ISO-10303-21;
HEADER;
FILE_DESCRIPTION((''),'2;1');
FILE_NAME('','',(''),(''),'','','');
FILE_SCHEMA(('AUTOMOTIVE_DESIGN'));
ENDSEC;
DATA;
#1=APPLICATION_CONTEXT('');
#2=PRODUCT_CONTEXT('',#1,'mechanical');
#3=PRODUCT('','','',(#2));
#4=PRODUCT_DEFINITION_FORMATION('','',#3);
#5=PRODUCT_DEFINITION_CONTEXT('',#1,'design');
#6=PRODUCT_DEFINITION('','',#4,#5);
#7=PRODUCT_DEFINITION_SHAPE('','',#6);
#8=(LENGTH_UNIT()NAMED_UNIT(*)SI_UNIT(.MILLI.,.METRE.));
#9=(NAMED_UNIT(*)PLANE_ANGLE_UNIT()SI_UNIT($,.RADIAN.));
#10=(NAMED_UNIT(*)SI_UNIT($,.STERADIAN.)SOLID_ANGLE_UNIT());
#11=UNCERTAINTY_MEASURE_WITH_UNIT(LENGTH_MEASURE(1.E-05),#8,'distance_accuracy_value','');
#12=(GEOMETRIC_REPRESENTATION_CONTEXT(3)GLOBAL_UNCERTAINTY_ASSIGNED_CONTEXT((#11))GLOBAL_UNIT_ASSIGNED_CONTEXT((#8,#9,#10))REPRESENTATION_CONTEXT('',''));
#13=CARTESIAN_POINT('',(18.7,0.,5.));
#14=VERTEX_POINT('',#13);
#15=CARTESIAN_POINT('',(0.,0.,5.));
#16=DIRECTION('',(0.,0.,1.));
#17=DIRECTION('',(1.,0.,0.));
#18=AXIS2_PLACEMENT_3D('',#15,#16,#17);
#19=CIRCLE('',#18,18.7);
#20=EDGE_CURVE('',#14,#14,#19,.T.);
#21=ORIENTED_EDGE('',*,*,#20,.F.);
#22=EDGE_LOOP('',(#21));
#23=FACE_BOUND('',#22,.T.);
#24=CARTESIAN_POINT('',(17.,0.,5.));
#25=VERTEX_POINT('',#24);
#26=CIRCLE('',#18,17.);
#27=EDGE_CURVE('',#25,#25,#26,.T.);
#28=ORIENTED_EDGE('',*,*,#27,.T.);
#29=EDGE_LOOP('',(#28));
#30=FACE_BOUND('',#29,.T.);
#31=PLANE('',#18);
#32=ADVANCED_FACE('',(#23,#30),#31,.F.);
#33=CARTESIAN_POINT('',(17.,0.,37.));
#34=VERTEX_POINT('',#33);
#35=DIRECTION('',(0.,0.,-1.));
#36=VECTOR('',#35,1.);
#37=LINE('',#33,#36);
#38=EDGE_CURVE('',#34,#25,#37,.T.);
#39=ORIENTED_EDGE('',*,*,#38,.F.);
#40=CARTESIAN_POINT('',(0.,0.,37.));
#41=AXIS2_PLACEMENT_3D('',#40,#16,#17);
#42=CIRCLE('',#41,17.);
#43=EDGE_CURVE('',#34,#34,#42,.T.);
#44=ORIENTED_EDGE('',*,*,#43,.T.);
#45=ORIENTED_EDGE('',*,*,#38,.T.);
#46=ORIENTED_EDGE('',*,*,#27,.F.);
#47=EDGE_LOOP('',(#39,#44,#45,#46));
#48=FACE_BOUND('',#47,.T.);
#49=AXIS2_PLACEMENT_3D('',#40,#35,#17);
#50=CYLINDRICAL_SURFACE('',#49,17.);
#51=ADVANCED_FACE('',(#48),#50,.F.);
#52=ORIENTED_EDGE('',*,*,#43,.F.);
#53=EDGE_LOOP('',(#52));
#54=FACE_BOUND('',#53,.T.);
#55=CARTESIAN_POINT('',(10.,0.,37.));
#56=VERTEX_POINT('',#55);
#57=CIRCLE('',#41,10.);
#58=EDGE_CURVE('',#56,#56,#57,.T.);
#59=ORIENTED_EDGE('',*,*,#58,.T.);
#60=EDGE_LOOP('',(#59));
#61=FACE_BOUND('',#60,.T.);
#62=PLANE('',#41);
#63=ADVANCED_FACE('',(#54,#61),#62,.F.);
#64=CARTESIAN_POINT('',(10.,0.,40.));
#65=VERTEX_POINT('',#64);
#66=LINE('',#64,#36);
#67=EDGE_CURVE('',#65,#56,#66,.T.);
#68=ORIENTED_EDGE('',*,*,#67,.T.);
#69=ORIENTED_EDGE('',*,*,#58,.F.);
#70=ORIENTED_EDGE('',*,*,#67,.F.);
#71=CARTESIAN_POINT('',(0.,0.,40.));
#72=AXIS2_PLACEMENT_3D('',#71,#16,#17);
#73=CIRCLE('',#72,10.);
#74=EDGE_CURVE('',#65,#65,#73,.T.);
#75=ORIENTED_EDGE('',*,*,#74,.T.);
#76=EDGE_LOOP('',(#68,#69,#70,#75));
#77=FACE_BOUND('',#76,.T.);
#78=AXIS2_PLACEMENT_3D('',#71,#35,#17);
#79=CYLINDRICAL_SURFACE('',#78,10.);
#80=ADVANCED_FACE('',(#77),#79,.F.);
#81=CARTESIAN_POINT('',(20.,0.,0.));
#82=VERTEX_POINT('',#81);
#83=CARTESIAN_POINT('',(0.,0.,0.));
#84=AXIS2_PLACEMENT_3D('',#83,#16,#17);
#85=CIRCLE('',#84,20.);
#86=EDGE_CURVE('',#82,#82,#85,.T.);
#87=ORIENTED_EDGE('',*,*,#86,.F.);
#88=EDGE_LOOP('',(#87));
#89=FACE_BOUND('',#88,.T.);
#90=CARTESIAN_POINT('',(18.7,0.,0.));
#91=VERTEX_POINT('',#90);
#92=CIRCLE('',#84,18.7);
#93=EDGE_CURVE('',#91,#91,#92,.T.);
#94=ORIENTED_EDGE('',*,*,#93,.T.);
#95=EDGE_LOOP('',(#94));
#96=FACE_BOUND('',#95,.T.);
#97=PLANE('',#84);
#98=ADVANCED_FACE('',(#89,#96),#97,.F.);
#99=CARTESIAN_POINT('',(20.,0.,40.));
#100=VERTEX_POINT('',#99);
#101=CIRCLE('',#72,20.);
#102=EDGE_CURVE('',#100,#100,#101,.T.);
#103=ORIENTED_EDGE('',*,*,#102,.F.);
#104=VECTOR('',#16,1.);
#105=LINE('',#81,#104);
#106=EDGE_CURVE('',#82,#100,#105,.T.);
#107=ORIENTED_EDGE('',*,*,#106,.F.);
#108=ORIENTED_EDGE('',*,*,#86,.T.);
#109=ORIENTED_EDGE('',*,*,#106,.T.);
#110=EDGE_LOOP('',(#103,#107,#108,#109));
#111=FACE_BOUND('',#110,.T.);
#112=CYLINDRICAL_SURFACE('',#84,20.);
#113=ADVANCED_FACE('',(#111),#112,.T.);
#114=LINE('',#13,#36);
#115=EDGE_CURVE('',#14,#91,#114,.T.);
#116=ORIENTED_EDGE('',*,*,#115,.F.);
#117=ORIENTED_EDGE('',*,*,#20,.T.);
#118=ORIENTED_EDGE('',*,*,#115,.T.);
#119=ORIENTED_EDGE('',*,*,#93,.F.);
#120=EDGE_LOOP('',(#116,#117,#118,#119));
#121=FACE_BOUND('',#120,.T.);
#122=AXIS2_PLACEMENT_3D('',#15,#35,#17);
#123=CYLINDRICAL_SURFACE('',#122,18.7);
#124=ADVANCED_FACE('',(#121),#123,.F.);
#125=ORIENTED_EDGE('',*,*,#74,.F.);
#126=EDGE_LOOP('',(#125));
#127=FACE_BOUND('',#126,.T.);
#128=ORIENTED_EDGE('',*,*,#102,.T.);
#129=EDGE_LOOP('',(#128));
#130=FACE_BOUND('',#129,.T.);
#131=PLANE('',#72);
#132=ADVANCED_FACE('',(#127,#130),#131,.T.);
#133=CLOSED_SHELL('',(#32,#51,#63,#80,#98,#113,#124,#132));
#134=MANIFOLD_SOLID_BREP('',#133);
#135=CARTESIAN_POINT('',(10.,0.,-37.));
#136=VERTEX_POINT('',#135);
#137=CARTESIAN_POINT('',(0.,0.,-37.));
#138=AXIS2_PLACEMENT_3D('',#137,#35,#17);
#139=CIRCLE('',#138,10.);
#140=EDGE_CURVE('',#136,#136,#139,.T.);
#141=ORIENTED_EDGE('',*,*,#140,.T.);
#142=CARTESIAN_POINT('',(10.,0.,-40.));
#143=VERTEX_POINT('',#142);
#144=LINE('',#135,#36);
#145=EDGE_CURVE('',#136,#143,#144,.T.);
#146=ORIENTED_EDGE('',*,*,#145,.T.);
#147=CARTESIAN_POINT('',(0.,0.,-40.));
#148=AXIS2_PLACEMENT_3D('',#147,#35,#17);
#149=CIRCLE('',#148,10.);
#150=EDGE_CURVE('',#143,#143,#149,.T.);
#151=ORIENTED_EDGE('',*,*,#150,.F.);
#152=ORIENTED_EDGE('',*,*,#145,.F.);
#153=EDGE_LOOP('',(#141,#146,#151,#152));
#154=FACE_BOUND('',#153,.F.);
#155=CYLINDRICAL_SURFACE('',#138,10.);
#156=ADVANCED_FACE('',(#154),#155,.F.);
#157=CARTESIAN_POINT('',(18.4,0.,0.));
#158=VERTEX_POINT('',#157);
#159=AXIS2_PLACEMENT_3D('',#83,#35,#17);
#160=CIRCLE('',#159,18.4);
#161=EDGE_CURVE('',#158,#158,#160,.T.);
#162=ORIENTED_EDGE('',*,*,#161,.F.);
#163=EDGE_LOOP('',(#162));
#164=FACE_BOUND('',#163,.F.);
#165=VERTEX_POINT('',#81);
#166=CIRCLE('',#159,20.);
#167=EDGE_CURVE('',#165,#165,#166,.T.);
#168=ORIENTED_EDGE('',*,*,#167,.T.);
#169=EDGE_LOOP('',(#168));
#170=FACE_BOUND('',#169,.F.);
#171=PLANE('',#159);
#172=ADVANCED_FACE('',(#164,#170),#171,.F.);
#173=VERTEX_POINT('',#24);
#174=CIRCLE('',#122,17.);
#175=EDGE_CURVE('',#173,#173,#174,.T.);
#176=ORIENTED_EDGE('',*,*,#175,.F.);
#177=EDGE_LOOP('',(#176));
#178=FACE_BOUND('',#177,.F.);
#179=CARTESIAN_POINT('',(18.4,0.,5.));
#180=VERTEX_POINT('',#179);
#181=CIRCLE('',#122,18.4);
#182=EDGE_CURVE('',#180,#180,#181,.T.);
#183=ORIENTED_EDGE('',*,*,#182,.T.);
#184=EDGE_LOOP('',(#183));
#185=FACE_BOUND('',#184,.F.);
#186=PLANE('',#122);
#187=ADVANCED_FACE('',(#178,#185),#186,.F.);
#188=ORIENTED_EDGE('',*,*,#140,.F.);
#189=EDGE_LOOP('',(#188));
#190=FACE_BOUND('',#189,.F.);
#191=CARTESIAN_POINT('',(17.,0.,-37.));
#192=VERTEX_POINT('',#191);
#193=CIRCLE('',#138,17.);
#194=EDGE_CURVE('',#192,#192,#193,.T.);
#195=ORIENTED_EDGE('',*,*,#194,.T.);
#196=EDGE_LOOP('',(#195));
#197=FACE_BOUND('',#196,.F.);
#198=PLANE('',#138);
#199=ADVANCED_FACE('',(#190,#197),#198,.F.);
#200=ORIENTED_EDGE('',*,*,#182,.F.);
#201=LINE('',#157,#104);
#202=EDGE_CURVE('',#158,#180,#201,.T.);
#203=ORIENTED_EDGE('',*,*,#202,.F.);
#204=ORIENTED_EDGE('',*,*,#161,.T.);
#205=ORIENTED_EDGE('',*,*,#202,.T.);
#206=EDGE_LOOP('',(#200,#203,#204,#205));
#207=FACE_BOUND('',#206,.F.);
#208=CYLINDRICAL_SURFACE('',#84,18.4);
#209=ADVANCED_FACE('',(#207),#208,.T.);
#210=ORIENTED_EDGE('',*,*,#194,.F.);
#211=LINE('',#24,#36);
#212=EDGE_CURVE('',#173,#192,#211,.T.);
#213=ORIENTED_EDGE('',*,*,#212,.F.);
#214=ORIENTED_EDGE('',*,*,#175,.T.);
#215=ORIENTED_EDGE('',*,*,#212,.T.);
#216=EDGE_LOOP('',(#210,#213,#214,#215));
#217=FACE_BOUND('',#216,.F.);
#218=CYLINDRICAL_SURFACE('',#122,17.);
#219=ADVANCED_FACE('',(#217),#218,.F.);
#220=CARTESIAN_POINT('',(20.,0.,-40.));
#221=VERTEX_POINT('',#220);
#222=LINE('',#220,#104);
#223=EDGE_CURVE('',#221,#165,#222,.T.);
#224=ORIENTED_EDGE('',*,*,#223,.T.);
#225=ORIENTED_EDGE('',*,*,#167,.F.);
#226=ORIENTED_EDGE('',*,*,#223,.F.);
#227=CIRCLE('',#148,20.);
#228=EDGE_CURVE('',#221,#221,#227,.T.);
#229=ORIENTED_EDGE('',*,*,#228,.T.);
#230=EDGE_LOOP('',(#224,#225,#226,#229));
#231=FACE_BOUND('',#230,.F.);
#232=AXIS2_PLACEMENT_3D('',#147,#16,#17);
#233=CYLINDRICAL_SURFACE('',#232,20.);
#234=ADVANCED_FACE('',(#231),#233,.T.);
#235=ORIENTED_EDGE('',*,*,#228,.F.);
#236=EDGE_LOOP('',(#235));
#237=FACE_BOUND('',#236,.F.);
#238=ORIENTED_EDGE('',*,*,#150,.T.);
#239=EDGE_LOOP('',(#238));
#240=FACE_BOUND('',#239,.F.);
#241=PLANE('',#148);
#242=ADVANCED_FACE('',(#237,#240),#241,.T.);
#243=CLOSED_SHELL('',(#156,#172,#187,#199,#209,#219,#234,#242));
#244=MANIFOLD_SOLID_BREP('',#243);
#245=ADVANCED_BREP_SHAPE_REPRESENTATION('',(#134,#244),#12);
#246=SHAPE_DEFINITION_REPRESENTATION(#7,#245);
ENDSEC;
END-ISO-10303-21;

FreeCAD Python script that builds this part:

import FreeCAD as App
import Part
import Sketcher
from FreeCAD import Vector
Q = App.Units.Quantity


def add_polygon(sketch, points):
    """Adds a closed chain of lines whose ends are joined by coincident constraints."""
    first, n = sketch.GeometryCount, len(points)
    for a, b in zip(points, points[1:] + points[:1]):
        sketch.addGeometry(Part.LineSegment(App.Vector(*a, 0), App.Vector(*b, 0)), False)
    for i in range(n):
        sketch.addConstraint(Sketcher.Constraint("Coincident", first + i, 2, first + (i + 1) % n, 1))

doc = App.newDocument("Part")
body = doc.addObject("PartDesign::Body", "Body")

sketch1 = doc.addObject("Sketcher::SketchObject", "Sketch")
body.addObject(sketch1)
sketch1.AttachmentSupport = (doc.XZ_Plane, [""])
sketch1.MapMode = "FlatFace"
add_polygon(sketch1, [(20, 40), (10, 40), (10, 37), (17, 37), (17, 5), (18.7, 5), (18.7, 0), (20, 0)])
sketch1.addConstraint(Sketcher.Constraint("Horizontal", 0))
sketch1.addConstraint(Sketcher.Constraint("Vertical", 1))
sketch1.addConstraint(Sketcher.Constraint("Horizontal", 2))
sketch1.addConstraint(Sketcher.Constraint("Vertical", 3))
sketch1.addConstraint(Sketcher.Constraint("Horizontal", 4))
sketch1.addConstraint(Sketcher.Constraint("Vertical", 5))
sketch1.addConstraint(Sketcher.Constraint("Horizontal", 6))
sketch1.addConstraint(Sketcher.Constraint("Vertical", 7))
sketch1.addConstraint(Sketcher.Constraint("PointOnObject", 5, 2, -1))
sketch1.addConstraint(Sketcher.Constraint("DistanceX", 0, 2, 0, 1, Q("10 mm")))
sketch1.addConstraint(Sketcher.Constraint("DistanceX", 2, 1, 2, 2, Q("7 mm")))
sketch1.addConstraint(Sketcher.Constraint("DistanceY", 1, 2, 1, 1, Q("3 mm")))
sketch1.addConstraint(Sketcher.Constraint("DistanceY", 3, 2, 3, 1, Q("32 mm")))
sketch1.addConstraint(Sketcher.Constraint("DistanceY", 5, 2, 5, 1, Q("5 mm")))
sketch1.addConstraint(Sketcher.Constraint("DistanceX", 4, 1, 4, 2, Q("1.7 mm")))
sketch1.addConstraint(Sketcher.Constraint("DistanceX", -1, 1, 0, 2, Q("10 mm")))
revolution = doc.addObject("PartDesign::Revolution", "Revolution")
body.addObject(revolution)
revolution.Profile = sketch1
revolution.ReferenceAxis = (sketch1, ["V_Axis"])
revolution.Angle = 360
body2 = doc.addObject("PartDesign::Body", "Body001")

sketch2 = doc.addObject("Sketcher::SketchObject", "Sketch001")
body2.addObject(sketch2)
sketch2.AttachmentSupport = (doc.getObject("XZ_Plane001"), [""])
sketch2.MapMode = "FlatFace"
add_polygon(sketch2, [(20, -40), (20, 0), (18.4, 0), (18.4, 5), (17, 5), (17, -37), (10, -37), (10, -40)])
sketch2.addConstraint(Sketcher.Constraint("Vertical", 0))
sketch2.addConstraint(Sketcher.Constraint("Horizontal", 1))
sketch2.addConstraint(Sketcher.Constraint("Vertical", 2))
sketch2.addConstraint(Sketcher.Constraint("Horizontal", 3))
sketch2.addConstraint(Sketcher.Constraint("Vertical", 4))
sketch2.addConstraint(Sketcher.Constraint("Horizontal", 5))
sketch2.addConstraint(Sketcher.Constraint("Vertical", 6))
sketch2.addConstraint(Sketcher.Constraint("Horizontal", 7))
sketch2.addConstraint(Sketcher.Constraint("PointOnObject", 0, 2, -1))
sketch2.addConstraint(Sketcher.Constraint("DistanceX", 5, 2, 5, 1, Q("7 mm")))
sketch2.addConstraint(Sketcher.Constraint("DistanceX", 7, 1, 7, 2, Q("10 mm")))
sketch2.addConstraint(Sketcher.Constraint("DistanceY", 0, 1, 0, 2, Q("40 mm")))
sketch2.addConstraint(Sketcher.Constraint("DistanceY", 2, 1, 2, 2, Q("5 mm")))
sketch2.addConstraint(Sketcher.Constraint("DistanceY", 4, 2, 4, 1, Q("42 mm")))
sketch2.addConstraint(Sketcher.Constraint("DistanceX", 1, 2, 1, 1, Q("1.6 mm")))
sketch2.addConstraint(Sketcher.Constraint("DistanceX", -1, 1, 0, 2, Q("20 mm")))
revolution2 = doc.addObject("PartDesign::Revolution", "Revolution001")
body2.addObject(revolution2)
revolution2.Profile = sketch2
revolution2.ReferenceAxis = (sketch2, ["V_Axis"])
revolution2.Angle = 360

doc.recompute()
